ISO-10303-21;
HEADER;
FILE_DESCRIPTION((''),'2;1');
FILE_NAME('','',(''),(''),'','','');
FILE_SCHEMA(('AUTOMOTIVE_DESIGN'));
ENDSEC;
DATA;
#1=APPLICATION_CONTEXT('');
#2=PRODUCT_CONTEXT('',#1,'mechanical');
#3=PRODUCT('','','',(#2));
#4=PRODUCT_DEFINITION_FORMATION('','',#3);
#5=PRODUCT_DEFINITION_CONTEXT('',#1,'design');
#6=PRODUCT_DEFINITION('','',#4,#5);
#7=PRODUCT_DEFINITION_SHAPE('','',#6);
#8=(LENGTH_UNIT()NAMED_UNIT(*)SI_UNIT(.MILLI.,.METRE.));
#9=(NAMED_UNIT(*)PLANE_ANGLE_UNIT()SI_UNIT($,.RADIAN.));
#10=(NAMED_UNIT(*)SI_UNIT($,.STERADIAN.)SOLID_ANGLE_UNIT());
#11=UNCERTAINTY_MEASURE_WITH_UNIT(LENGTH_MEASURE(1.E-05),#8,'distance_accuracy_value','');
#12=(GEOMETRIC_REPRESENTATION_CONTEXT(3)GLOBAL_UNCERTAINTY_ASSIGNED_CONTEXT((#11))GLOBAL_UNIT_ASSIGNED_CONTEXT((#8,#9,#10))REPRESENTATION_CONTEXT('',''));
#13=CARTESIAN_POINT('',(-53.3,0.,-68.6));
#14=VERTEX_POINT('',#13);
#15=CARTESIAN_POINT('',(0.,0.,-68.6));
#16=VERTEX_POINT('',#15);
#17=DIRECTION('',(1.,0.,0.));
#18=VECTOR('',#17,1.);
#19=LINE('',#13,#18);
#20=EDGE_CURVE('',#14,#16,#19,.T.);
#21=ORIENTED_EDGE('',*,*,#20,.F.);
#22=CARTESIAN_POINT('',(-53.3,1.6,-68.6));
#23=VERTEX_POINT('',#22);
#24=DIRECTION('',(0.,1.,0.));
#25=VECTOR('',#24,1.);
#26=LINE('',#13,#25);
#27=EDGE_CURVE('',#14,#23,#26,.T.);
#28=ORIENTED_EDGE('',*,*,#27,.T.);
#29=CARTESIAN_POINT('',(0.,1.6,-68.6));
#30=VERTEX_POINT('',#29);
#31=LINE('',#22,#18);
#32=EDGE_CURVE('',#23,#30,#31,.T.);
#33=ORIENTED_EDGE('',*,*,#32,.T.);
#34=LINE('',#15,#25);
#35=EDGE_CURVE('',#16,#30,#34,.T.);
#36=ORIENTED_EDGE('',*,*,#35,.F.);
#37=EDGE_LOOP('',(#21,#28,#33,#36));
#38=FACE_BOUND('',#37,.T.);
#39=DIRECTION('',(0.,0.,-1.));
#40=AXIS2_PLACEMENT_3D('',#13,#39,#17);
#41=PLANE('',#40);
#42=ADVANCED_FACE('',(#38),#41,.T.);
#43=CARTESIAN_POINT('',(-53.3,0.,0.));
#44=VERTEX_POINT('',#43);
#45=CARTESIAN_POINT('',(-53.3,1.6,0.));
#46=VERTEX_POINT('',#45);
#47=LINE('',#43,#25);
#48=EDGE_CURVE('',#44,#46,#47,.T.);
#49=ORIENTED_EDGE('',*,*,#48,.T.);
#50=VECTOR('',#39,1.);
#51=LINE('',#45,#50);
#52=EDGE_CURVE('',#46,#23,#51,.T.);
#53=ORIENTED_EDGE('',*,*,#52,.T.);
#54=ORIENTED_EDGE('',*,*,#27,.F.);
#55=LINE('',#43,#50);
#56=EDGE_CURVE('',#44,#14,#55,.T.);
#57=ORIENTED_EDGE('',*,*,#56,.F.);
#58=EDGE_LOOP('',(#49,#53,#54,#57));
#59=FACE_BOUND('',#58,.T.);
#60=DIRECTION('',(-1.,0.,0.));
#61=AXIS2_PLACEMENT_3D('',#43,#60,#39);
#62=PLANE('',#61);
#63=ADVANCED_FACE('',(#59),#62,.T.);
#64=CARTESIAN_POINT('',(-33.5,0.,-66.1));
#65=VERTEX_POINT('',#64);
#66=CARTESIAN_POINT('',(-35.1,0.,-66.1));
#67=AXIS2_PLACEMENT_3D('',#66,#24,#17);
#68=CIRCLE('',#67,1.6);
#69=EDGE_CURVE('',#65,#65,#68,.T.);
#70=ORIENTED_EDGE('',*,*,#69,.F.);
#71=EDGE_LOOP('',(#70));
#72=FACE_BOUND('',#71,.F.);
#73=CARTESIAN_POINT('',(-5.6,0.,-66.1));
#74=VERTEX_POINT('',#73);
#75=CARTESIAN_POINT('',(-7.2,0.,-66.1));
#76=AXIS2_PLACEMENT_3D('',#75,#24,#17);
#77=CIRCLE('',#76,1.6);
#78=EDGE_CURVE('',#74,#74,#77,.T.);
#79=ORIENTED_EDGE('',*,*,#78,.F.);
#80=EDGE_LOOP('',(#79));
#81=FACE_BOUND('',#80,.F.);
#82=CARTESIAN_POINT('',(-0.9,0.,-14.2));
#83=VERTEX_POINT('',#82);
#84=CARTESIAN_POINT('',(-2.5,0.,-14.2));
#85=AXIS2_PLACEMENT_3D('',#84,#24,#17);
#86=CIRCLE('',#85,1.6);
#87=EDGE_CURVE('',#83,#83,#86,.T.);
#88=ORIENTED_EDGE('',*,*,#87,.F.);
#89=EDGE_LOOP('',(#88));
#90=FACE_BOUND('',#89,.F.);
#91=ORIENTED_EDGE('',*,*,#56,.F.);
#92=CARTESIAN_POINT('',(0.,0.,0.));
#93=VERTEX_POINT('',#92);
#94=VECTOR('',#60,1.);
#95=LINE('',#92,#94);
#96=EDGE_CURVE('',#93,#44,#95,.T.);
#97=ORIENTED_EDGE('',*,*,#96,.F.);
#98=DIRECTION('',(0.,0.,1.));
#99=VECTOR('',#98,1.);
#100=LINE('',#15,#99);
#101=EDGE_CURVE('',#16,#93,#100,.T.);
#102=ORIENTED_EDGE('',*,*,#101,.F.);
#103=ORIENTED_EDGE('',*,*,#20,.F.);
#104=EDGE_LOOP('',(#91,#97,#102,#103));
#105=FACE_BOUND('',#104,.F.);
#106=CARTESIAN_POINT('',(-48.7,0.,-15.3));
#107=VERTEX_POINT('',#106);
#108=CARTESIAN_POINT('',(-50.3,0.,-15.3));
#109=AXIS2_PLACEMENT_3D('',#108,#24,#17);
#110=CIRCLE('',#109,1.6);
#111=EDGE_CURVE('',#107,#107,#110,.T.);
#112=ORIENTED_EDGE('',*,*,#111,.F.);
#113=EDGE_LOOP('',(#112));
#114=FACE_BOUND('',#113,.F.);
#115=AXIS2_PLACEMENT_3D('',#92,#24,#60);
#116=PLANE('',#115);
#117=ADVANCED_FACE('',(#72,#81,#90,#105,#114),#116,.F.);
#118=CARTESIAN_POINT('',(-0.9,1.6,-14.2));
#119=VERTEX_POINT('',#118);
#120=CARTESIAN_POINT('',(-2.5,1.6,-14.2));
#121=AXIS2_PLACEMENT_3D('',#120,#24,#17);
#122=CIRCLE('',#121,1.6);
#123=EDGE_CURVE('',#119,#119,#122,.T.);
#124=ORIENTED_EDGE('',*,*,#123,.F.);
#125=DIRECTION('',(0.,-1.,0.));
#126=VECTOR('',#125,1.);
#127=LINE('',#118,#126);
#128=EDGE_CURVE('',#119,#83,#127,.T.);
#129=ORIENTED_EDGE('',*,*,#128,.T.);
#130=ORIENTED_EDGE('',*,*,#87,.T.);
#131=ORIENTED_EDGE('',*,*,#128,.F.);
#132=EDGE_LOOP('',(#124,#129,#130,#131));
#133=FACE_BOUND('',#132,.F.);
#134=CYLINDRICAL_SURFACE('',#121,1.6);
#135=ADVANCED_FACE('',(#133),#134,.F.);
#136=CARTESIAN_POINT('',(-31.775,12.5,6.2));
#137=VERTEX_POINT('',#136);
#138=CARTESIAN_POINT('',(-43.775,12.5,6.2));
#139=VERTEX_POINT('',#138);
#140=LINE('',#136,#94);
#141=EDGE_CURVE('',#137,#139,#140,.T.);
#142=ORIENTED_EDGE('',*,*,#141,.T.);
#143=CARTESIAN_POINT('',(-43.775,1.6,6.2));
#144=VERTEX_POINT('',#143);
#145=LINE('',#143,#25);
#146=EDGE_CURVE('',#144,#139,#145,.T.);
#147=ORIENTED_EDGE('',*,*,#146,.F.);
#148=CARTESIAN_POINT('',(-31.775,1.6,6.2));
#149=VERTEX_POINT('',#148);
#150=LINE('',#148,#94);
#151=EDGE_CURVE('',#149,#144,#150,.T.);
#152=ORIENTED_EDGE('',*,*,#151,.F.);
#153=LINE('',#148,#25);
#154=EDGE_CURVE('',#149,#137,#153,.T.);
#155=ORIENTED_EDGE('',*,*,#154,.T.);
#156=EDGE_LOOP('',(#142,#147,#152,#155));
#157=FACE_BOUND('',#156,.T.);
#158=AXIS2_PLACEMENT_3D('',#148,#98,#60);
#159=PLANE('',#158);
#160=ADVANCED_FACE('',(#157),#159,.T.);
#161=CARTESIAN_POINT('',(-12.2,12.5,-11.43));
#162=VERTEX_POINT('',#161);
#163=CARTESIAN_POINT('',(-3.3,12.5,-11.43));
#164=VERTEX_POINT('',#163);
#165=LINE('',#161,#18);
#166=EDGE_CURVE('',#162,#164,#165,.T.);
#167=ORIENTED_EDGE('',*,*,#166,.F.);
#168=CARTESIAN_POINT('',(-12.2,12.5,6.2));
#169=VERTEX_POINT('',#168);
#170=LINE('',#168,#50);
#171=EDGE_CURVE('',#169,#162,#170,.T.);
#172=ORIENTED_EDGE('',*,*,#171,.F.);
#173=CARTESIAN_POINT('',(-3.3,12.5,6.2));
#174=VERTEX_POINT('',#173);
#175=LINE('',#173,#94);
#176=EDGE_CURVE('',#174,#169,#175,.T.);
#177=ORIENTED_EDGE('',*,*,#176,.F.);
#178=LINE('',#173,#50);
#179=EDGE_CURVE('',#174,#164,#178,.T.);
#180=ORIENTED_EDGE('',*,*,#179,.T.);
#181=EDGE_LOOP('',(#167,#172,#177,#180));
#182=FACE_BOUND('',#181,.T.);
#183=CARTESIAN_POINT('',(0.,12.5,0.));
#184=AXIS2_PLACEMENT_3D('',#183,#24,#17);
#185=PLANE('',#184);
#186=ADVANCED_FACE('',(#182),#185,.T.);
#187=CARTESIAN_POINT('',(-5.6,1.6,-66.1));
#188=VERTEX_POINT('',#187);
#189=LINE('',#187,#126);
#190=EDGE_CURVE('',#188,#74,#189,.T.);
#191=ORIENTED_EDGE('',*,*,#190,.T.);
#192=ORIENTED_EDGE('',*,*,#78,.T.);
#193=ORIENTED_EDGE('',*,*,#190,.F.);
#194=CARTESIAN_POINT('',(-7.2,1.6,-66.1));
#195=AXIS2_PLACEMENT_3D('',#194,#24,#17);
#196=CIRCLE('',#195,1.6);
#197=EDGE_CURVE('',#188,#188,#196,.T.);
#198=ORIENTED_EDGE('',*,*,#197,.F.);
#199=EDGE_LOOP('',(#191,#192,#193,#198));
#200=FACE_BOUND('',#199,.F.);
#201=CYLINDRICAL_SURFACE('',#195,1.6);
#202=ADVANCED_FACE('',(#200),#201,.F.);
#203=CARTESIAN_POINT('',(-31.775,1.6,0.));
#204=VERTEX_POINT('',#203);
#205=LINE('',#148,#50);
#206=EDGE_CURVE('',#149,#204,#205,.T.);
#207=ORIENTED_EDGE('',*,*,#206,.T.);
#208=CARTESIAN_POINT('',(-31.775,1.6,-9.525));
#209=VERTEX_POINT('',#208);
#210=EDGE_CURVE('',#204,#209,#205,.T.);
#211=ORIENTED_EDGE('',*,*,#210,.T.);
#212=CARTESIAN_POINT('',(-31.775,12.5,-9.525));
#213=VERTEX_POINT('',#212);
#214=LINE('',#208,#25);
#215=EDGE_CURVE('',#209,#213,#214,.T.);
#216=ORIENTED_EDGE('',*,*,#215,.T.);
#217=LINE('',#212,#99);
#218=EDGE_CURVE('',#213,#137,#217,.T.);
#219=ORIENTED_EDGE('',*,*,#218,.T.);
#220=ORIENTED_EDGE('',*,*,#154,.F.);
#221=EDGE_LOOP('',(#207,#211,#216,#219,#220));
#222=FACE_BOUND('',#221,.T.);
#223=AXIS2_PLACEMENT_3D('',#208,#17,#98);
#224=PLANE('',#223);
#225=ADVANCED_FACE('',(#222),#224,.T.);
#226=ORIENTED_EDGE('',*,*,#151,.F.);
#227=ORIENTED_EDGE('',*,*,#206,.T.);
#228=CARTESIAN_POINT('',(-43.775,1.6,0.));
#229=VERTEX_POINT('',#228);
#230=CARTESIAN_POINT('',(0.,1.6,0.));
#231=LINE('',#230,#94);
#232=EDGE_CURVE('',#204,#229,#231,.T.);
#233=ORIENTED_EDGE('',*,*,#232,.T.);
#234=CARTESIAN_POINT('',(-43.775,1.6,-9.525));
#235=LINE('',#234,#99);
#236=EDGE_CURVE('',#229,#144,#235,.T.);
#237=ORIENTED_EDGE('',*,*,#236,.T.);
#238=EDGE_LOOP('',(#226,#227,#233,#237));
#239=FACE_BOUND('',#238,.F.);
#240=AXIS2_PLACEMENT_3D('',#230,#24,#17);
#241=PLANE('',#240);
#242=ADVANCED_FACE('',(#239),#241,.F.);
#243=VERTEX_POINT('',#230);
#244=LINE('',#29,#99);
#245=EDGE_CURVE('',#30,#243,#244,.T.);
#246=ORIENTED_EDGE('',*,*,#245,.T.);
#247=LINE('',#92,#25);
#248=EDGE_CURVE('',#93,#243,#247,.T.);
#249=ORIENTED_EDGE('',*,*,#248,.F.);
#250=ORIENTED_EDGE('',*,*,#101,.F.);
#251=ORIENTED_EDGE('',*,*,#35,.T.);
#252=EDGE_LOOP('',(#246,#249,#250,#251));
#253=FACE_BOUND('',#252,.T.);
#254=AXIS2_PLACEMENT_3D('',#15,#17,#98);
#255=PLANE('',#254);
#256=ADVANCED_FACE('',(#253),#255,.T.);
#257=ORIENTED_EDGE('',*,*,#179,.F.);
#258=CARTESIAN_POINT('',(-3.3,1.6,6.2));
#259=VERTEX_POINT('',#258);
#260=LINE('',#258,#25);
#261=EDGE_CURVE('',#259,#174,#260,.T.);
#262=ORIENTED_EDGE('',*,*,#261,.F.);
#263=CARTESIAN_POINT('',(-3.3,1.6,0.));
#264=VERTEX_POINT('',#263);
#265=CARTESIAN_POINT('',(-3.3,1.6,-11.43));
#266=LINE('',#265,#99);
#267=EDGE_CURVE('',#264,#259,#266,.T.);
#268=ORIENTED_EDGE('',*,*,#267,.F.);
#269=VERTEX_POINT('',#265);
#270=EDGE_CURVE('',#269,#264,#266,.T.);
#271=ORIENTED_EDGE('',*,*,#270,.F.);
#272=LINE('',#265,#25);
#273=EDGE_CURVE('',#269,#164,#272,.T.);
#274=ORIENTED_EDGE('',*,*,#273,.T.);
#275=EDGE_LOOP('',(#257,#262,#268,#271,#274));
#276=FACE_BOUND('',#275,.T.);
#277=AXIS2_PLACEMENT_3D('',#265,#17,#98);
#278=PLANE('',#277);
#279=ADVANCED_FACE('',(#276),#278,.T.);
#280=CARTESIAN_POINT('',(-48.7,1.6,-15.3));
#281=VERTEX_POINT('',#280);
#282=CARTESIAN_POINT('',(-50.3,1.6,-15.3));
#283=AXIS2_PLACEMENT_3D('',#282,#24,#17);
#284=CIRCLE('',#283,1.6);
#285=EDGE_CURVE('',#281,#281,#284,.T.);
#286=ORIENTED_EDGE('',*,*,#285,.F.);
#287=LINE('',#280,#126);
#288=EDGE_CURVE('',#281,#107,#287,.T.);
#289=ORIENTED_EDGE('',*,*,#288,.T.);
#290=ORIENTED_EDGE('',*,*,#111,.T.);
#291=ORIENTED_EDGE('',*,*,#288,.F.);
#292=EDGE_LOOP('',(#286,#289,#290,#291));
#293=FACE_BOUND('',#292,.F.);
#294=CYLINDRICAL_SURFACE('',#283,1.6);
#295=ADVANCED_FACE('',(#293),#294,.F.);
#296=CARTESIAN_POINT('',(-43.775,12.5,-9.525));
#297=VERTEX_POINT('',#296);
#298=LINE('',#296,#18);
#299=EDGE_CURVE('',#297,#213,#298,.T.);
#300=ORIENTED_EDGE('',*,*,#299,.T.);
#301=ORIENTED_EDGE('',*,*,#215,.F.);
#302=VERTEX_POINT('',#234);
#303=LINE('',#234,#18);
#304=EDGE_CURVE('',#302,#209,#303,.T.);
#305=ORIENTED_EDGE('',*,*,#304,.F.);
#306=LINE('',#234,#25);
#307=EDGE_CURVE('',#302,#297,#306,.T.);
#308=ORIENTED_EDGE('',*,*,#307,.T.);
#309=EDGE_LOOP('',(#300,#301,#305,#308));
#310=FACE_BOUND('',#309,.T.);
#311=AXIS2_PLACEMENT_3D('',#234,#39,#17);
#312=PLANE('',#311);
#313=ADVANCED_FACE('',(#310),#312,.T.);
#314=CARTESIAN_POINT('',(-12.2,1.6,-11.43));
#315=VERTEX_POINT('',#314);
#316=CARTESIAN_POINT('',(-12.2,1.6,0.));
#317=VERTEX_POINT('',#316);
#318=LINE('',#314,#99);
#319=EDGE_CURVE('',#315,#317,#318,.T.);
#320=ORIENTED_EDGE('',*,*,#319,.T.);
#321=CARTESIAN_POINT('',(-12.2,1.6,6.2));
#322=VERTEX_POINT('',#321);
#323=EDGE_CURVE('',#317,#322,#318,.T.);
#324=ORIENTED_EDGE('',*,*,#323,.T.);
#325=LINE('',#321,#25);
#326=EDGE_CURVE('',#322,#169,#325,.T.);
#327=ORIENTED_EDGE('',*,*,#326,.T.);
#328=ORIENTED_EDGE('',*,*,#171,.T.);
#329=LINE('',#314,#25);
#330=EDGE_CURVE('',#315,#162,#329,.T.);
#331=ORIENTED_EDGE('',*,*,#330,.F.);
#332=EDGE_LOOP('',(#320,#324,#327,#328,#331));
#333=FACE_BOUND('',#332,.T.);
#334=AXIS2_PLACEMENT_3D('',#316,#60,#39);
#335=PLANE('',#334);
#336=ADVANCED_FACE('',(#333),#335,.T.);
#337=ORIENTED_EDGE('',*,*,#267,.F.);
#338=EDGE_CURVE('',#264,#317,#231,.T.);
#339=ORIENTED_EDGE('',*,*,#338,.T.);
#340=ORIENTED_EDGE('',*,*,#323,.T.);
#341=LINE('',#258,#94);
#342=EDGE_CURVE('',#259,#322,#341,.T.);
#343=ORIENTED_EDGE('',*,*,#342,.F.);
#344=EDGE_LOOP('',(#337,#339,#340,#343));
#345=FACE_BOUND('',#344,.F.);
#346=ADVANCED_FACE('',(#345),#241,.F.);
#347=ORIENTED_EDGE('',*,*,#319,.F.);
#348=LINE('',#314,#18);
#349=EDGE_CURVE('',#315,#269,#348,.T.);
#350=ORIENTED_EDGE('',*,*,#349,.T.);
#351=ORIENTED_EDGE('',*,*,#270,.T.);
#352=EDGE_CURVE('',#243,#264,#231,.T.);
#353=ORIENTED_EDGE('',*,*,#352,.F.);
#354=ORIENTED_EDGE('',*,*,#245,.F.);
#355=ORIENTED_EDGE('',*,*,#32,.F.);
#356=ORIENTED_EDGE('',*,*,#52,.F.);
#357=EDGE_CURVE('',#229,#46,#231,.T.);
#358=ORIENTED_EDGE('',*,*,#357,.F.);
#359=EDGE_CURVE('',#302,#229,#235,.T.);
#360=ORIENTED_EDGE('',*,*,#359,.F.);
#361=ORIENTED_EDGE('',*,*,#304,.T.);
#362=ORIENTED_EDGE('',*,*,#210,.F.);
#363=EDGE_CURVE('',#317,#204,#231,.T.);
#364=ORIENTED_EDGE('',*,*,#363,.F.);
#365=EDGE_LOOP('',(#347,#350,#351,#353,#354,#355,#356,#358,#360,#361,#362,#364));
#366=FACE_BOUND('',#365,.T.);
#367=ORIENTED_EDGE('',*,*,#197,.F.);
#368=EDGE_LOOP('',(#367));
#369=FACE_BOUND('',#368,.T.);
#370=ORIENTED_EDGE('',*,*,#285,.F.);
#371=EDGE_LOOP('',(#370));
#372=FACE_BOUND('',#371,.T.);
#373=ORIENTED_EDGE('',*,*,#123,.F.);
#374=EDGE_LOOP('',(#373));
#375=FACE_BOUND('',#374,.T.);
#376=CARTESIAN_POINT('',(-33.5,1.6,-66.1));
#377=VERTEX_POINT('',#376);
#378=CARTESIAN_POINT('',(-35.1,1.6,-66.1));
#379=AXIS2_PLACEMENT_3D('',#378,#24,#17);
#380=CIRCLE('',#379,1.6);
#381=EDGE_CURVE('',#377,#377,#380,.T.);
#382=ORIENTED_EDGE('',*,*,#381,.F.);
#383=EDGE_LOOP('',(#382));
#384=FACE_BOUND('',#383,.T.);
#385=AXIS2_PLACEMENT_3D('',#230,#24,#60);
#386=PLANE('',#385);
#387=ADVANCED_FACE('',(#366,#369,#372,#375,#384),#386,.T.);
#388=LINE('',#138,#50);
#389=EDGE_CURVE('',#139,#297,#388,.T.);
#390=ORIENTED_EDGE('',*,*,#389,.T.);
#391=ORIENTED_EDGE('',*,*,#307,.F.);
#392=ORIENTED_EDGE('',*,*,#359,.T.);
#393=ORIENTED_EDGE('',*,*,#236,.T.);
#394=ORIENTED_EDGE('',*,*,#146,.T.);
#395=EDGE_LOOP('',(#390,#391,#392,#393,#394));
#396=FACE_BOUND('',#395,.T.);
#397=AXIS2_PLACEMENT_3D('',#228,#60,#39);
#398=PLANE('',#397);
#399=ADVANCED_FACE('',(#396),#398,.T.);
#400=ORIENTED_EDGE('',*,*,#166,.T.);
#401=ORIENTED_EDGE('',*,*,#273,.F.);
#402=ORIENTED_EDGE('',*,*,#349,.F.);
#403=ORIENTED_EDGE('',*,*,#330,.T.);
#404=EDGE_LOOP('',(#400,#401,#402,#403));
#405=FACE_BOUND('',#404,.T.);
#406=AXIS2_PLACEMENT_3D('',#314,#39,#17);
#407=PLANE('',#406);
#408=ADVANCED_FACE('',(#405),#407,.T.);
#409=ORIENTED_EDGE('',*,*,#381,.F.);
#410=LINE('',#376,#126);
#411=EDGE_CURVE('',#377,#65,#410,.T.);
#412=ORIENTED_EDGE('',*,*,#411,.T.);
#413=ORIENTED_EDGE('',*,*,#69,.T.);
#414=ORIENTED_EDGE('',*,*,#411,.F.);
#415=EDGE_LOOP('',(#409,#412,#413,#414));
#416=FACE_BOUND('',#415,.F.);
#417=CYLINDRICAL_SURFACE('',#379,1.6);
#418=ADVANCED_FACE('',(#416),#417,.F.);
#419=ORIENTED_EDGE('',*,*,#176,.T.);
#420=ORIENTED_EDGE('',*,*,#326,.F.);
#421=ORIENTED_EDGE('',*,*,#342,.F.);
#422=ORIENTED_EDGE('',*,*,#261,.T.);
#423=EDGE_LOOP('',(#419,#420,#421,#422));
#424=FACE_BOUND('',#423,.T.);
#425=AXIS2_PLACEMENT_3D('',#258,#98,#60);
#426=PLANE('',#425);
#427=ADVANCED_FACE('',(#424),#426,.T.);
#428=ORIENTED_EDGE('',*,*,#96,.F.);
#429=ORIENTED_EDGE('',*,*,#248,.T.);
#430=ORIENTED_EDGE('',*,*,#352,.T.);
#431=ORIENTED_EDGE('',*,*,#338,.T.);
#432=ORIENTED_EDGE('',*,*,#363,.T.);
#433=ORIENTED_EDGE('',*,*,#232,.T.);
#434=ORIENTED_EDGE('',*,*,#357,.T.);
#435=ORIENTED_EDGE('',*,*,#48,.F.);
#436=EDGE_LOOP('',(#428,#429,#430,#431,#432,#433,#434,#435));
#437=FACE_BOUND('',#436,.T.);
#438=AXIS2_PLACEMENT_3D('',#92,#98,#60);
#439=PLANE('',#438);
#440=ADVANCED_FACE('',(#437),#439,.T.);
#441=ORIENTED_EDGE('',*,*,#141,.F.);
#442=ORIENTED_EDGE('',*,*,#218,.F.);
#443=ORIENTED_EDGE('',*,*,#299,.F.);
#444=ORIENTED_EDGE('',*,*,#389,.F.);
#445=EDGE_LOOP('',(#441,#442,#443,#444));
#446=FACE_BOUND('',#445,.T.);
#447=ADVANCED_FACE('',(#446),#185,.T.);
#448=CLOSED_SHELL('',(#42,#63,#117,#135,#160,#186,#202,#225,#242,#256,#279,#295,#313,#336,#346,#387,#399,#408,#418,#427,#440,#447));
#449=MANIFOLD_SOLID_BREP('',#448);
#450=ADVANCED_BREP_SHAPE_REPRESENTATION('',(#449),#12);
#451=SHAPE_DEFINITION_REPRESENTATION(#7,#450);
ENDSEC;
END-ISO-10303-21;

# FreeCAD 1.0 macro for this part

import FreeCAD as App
import Part
import Sketcher
from FreeCAD import Vector


def add_polygon(sketch, points):
    """Adds a closed chain of lines whose ends are joined by coincident constraints."""
    first, n = sketch.GeometryCount, len(points)
    for a, b in zip(points, points[1:] + points[:1]):
        sketch.addGeometry(Part.LineSegment(App.Vector(*a, 0), App.Vector(*b, 0)), False)
    for i in range(n):
        sketch.addConstraint(Sketcher.Constraint("Coincident", first + i, 2, first + (i + 1) % n, 1))

doc = App.newDocument("Part")
body = doc.addObject("PartDesign::Body", "Body")

sketch1 = body.newObject("Sketcher::SketchObject", "Sketch")
sketch1.AttachmentSupport = (doc.getObject("XZ_Plane"), [""])
sketch1.MapMode = "FlatFace"
add_polygon(sketch1, [(-53, 0), (0, 0), (0, -69), (-53, -69)])
sketch1.addConstraint([
    Sketcher.Constraint("Horizontal", 0),
    Sketcher.Constraint("Vertical", 1),
    Sketcher.Constraint("Horizontal", 2),
    Sketcher.Constraint("Vertical", 3),
    Sketcher.Constraint("Coincident", 0, 2, -1, 1),
    Sketcher.Constraint("DistanceX", 0, 1, 0, 2, 53.3),
    Sketcher.Constraint("DistanceY", 1, 2, 1, 1, 68.6),
])
pad1 = body.newObject("PartDesign::Pad", "Pad")
pad1.Profile = sketch1
pad1.Length = 1.6
pad1.Reversed = True

sketch2 = body.newObject("Sketcher::SketchObject", "Sketch001")
sketch2.AttachmentSupport = (doc.getObject("XZ_Plane"), [""])
sketch2.MapMode = "FlatFace"
sketch2.AttachmentOffset = App.Placement(Vector(0, 0, -1.6), App.Rotation())
sketch2.addGeometry([
    Part.Circle(Vector(-50.3, -15.3, 0), Vector(0, 0, 1), 1.6),
    Part.Circle(Vector(-2.5, -14.2, 0), Vector(0, 0, 1), 1.6),
    Part.Circle(Vector(-7.2, -66.1, 0), Vector(0, 0, 1), 1.6),
    Part.Circle(Vector(-35.1, -66.1, 0), Vector(0, 0, 1), 1.6),
], False)
sketch2.addConstraint([
    Sketcher.Constraint("Equal", 0, 1),
    Sketcher.Constraint("Equal", 1, 2),
    Sketcher.Constraint("Equal", 2, 3),
    Sketcher.Constraint("Horizontal", 2, 3, 3, 3),
    Sketcher.Constraint("Diameter", 0, 3.2),
    Sketcher.Constraint("DistanceY", 0, 3, -1, 1, 15.3),
    Sketcher.Constraint("DistanceX", 1, 3, -1, 1, 2.5),
    Sketcher.Constraint("DistanceX", 2, 3, 1, 3, 4.7),
    Sketcher.Constraint("DistanceY", 2, 3, 1, 3, 51.9),
    Sketcher.Constraint("DistanceY", 2, 3, 0, 3, 50.8),
    Sketcher.Constraint("DistanceX", 3, 3, 2, 3, 27.9),
    Sketcher.Constraint("DistanceX", 0, 3, 3, 3, 15.2),
])
pocket1 = body.newObject("PartDesign::Pocket", "Pocket")
pocket1.Profile = sketch2
pocket1.Type = "ThroughAll"
pocket1.Reversed = True

sketch3 = body.newObject("Sketcher::SketchObject", "Sketch002")
sketch3.AttachmentSupport = (doc.getObject("XZ_Plane"), [""])
sketch3.MapMode = "FlatFace"
sketch3.AttachmentOffset = App.Placement(Vector(0, 0, -1.6), App.Rotation())
add_polygon(sketch3, [(-12, -11), (-12, 6), (-3, 6), (-3, -11)])
add_polygon(sketch3, [(-32, -10), (-44, -10), (-44, 6), (-32, 6)])
sketch3.addConstraint([
    Sketcher.Constraint("Vertical", 0),
    Sketcher.Constraint("Horizontal", 1),
    Sketcher.Constraint("Vertical", 2),
    Sketcher.Constraint("Horizontal", 3),
    Sketcher.Constraint("Horizontal", 4),
    Sketcher.Constraint("Vertical", 5),
    Sketcher.Constraint("Horizontal", 6),
    Sketcher.Constraint("Vertical", 7),
    Sketcher.Constraint("Horizontal", 1, 2, 5, 2),
    Sketcher.Constraint("DistanceX", 4, 2, 4, 1, 12.0),
    Sketcher.Constraint("DistanceX", 1, 1, 1, 2, 8.9),
    Sketcher.Constraint("DistanceY", -1, 1, 0, 2, 6.2),
    Sketcher.Constraint("DistanceX", 1, 2, -1, 1, 3.3),
    Sketcher.Constraint("DistanceY", 2, 2, -1, 1, 11.43),
    Sketcher.Constraint("DistanceY", 4, 2, -1, 1, 9.525),
    Sketcher.Constraint("DistanceX", 4, 2, -1, 1, 43.775),
])
pad2 = body.newObject("PartDesign::Pad", "Pad001")
pad2.Profile = sketch3
pad2.Length = 10.9
pad2.Reversed = True

doc.recompute()
